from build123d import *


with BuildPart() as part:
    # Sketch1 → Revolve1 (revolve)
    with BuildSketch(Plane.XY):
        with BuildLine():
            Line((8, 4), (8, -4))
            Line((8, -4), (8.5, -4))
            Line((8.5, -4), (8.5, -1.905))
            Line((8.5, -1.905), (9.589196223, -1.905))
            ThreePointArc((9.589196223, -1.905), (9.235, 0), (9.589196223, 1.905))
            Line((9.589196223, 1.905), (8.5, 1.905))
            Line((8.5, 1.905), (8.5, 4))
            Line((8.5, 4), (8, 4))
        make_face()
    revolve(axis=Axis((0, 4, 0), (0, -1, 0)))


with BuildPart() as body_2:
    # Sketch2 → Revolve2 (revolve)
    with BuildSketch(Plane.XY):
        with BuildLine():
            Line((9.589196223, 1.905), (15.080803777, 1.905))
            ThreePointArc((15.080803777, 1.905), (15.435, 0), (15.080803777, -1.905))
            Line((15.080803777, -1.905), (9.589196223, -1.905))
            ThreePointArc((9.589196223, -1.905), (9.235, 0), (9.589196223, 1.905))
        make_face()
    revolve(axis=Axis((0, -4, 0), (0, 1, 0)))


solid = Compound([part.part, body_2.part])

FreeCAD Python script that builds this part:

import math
import FreeCAD as App
import Part
import Sketcher
from FreeCAD import Vector

doc = App.newDocument("Part")
params = doc.addObject("Spreadsheet::Sheet", "Params")
for row, (alias, value) in enumerate([
    ("sketch1_radius", "5.3 mm"),
    ("sketch1_height", "8 mm"),
    ("sketch1_width", "0.5 mm"),
    ("revolution_angle", "360 deg"),
    ("sketch2_radius", "5.3 mm"),
    ("revolution2_angle", "360 deg"),
], start=1):
    params.set(f"A{row}", alias)
    params.set(f"B{row}", "=" + value)
    params.setAlias(f"B{row}", alias)

body = doc.addObject("PartDesign::Body", "Body")

sketch1 = body.newObject("Sketcher::SketchObject", "Sketch")
sketch1.AttachmentSupport = (doc.getObject("XY_Plane"), [""])
sketch1.MapMode = "FlatFace"
sketch1.addGeometry([
    Part.LineSegment(Vector(8, 4, 0), Vector(8, -4, 0)),
    Part.LineSegment(Vector(8, -4, 0), Vector(8.5, -4, 0)),
    Part.LineSegment(Vector(8.5, -4, 0), Vector(8.5, -1.905, 0)),
    Part.LineSegment(Vector(8.5, -1.905, 0), Vector(9.589196, -1.905, 0)),
    Part.ArcOfCircle(Part.Circle(Vector(14.535, 0, 0), Vector(0, 0, 1), 5.3), math.radians(158.934562), math.radians(201.065438)),
    Part.LineSegment(Vector(9.589196, 1.905, 0), Vector(8.5, 1.905, 0)),
    Part.LineSegment(Vector(8.5, 1.905, 0), Vector(8.5, 4, 0)),
    Part.LineSegment(Vector(8.5, 4, 0), Vector(8, 4, 0)),
], False)
sketch1.addConstraint([
    Sketcher.Constraint("Coincident", 0, 2, 1, 1),
    Sketcher.Constraint("Coincident", 1, 2, 2, 1),
    Sketcher.Constraint("Coincident", 2, 2, 3, 1),
    Sketcher.Constraint("Coincident", 3, 2, 4, 2),
    Sketcher.Constraint("Coincident", 4, 1, 5, 1),
    Sketcher.Constraint("Coincident", 5, 2, 6, 1),
    Sketcher.Constraint("Coincident", 6, 2, 7, 1),
    Sketcher.Constraint("Coincident", 7, 2, 0, 1),
    Sketcher.Constraint("Vertical", 0),
    Sketcher.Constraint("Horizontal", 1),
    Sketcher.Constraint("Vertical", 2),
    Sketcher.Constraint("Horizontal", 3),
    Sketcher.Constraint("Horizontal", 5),
    Sketcher.Constraint("Vertical", 6),
    Sketcher.Constraint("Horizontal", 7),
    Sketcher.Constraint("Symmetric", 3, 2, 4, 1, -1),
    Sketcher.Constraint("Symmetric", 1, 2, 6, 2, -1),
    Sketcher.Constraint("Radius", 4, 5.3),
    Sketcher.Constraint("DistanceY", 0, 2, 0, 1, 8.0),
    Sketcher.Constraint("DistanceX", 1, 1, 1, 2, 0.5),
    Sketcher.Constraint("DistanceX", -1, 1, 0, 2, 8.0),
    Sketcher.Constraint("DistanceY", 2, 1, 2, 2, 2.095),
    Sketcher.Constraint("DistanceX", -1, 1, 4, 3, 14.535),
])
sketch1.setExpression("Constraints[17]", "Params.sketch1_radius")
sketch1.setExpression("Constraints[18]", "Params.sketch1_height")
sketch1.setExpression("Constraints[19]", "Params.sketch1_width")
revolution = body.newObject("PartDesign::Revolution", "Revolution")
revolution.Profile = sketch1
revolution.ReferenceAxis = (sketch1, ["V_Axis"])
revolution.setExpression("Angle", "Params.revolution_angle")
body2 = doc.addObject("PartDesign::Body", "Body001")

sketch2 = body2.newObject("Sketcher::SketchObject", "Sketch001")
sketch2.AttachmentSupport = (doc.getObject("XY_Plane001"), [""])
sketch2.MapMode = "FlatFace"
sketch2.addGeometry([
    Part.LineSegment(Vector(15.080804, 1.905, 0), Vector(9.589196, 1.905, 0)),
    Part.ArcOfCircle(Part.Circle(Vector(14.535, 0, 0), Vector(0, 0, 1), 5.3), math.radians(158.934562), math.radians(201.065438)),
    Part.LineSegment(Vector(9.589196, -1.905, 0), Vector(15.080804, -1.905, 0)),
    Part.ArcOfCircle(Part.Circle(Vector(10.135, 0, 0), Vector(0, 0, 1), 5.3), math.radians(-21.065438), math.radians(21.065438)),
], False)
sketch2.addConstraint([
    Sketcher.Constraint("Coincident", 0, 2, 1, 1),
    Sketcher.Constraint("Coincident", 1, 2, 2, 1),
    Sketcher.Constraint("Coincident", 2, 2, 3, 1),
    Sketcher.Constraint("Coincident", 3, 2, 0, 1),
    Sketcher.Constraint("Horizontal", 0),
    Sketcher.Constraint("Horizontal", 2),
    Sketcher.Constraint("Equal", 1, 3),
    Sketcher.Constraint("Symmetric", 0, 2, 1, 2, -1),
    Sketcher.Constraint("PointOnObject", 3, 3, -1),
    Sketcher.Constraint("Radius", 1, 5.3),
    Sketcher.Constraint("DistanceX", 3, 3, 1, 3, 4.4),
    Sketcher.Constraint("DistanceY", 1, 2, 0, 2, 3.81),
    Sketcher.Constraint("DistanceX", -1, 1, 1, 3, 14.535),
])
sketch2.setExpression("Constraints[9]", "Params.sketch2_radius")
revolution2 = body2.newObject("PartDesign::Revolution", "Revolution001")
revolution2.Profile = sketch2
revolution2.ReferenceAxis = (sketch2, ["V_Axis"])
revolution2.setExpression("Angle", "Params.revolution2_angle")

doc.recompute()
